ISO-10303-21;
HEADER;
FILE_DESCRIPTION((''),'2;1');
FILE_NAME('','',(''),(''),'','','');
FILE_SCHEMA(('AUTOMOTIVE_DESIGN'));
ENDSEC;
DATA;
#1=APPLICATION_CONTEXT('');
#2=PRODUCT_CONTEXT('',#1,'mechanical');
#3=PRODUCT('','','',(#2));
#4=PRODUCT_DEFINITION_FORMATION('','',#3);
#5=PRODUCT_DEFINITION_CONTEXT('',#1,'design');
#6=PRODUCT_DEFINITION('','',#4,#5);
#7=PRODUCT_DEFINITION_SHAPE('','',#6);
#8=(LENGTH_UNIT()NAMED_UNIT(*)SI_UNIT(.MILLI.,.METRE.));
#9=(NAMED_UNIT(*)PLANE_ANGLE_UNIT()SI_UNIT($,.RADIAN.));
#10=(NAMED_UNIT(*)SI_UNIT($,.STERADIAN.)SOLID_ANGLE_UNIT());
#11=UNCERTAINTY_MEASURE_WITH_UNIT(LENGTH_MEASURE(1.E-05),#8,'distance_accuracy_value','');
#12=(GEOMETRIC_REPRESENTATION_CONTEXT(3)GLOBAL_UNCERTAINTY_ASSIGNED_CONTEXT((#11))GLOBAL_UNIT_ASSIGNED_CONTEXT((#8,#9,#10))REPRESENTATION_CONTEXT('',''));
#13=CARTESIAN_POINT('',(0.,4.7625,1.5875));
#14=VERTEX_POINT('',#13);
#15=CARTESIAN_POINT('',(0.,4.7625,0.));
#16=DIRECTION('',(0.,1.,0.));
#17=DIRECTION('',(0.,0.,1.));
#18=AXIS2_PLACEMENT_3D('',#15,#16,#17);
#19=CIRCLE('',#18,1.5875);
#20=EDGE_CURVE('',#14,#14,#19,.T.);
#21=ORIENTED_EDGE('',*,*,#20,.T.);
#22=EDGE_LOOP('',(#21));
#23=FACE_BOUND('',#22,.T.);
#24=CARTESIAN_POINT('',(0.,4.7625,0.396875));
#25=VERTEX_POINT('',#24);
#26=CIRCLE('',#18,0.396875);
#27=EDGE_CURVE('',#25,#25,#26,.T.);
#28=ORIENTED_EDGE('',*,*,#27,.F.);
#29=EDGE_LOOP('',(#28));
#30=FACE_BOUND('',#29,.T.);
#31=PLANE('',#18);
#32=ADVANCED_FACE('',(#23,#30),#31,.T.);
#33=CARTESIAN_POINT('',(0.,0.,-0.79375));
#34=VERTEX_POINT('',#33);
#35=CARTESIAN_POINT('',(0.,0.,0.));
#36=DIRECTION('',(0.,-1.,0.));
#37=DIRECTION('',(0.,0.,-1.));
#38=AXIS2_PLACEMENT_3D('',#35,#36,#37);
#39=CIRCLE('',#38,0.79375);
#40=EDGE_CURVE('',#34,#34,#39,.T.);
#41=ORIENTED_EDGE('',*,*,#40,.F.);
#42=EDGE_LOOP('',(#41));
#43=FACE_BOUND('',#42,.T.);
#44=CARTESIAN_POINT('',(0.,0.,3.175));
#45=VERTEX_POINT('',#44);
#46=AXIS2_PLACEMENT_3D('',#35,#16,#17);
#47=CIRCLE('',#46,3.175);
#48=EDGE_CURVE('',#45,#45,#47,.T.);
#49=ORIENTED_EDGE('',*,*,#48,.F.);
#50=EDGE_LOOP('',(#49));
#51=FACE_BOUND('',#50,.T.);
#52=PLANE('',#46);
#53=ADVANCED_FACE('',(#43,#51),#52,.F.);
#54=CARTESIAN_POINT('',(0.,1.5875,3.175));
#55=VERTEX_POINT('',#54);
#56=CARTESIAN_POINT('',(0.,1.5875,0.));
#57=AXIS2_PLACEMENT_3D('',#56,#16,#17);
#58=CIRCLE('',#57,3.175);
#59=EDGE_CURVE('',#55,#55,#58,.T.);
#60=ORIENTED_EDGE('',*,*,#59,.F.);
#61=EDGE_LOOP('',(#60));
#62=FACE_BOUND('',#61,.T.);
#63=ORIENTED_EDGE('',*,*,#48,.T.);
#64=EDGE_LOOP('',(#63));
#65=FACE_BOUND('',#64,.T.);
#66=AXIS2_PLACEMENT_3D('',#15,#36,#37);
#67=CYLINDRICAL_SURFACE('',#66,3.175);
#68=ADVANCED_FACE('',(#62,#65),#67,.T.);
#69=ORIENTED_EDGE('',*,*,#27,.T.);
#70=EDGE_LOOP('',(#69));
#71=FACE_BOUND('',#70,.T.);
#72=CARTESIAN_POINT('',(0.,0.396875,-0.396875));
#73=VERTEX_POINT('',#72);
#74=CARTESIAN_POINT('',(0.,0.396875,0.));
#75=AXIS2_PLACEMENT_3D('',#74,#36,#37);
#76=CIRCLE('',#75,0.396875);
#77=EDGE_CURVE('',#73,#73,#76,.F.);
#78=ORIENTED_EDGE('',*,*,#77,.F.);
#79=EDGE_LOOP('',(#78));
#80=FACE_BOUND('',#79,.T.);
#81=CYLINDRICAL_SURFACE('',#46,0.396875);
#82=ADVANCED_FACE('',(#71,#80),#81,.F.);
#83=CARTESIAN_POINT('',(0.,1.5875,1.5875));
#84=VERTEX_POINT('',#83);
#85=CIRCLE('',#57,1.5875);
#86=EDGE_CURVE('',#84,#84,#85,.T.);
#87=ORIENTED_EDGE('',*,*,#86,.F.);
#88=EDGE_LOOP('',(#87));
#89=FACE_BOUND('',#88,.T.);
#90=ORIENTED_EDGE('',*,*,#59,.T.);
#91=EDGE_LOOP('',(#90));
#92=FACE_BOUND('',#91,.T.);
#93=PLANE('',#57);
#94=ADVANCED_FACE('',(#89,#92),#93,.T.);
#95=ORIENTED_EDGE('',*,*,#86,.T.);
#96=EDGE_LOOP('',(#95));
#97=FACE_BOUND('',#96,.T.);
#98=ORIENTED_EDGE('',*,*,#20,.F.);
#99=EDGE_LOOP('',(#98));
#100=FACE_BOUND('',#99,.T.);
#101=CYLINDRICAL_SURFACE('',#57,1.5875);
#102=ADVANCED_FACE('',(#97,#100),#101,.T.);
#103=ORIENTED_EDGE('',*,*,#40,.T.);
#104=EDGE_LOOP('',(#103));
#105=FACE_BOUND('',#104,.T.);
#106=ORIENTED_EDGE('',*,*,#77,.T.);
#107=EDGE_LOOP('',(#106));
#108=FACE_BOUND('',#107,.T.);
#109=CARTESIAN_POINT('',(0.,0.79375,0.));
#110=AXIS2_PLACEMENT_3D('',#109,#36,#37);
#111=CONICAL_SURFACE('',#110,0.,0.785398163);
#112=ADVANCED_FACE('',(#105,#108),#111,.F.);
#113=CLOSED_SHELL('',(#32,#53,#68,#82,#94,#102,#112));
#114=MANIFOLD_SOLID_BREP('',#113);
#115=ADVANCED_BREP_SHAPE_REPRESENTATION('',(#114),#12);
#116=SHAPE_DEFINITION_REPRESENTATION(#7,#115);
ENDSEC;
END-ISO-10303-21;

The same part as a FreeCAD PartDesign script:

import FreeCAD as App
import Part
import Sketcher
Q = App.Units.Quantity


def add_polygon(sketch, points):
    """Adds a closed chain of lines whose ends are joined by coincident constraints."""
    first, n = sketch.GeometryCount, len(points)
    for a, b in zip(points, points[1:] + points[:1]):
        sketch.addGeometry(Part.LineSegment(App.Vector(*a, 0), App.Vector(*b, 0)), False)
    for i in range(n):
        sketch.addConstraint(Sketcher.Constraint("Coincident", first + i, 2, first + (i + 1) % n, 1))

doc = App.newDocument("Part")
body = doc.addObject("PartDesign::Body", "Body")

sketch1 = doc.addObject("Sketcher::SketchObject", "Sketch")
body.addObject(sketch1)
sketch1.AttachmentSupport = (doc.XZ_Plane, [""])
sketch1.MapMode = "FlatFace"
sketch1.addGeometry(Part.Circle(App.Vector(0, 0, 0), App.Vector(0, 0, 1), 3.2), False)
sketch1.addConstraint(Sketcher.Constraint("Coincident", 0, 3, -1, 1))
sketch1.addConstraint(Sketcher.Constraint("Diameter", 0, Q("0.25 in")))
pad1 = doc.addObject("PartDesign::Pad", "Pad")
body.addObject(pad1)
pad1.Profile = sketch1
pad1.Length = Q("0.1875 in")
pad1.Reversed = True

sketch2 = doc.addObject("Sketcher::SketchObject", "Sketch001")
body.addObject(sketch2)
sketch2.AttachmentSupport = (doc.XZ_Plane, [""])
sketch2.MapMode = "FlatFace"
sketch2.AttachmentOffset = App.Placement(App.Vector(0, 0, -0.1875 * 25.4), App.Rotation())
sketch2.addGeometry(Part.Circle(App.Vector(0, 0, 0), App.Vector(0, 0, 1), 3.2), False)
sketch2.addGeometry(Part.Circle(App.Vector(0, 0, 0), App.Vector(0, 0, 1), 1.6), False)
sketch2.addConstraint(Sketcher.Constraint("Coincident", 0, 3, -1, 1))
sketch2.addConstraint(Sketcher.Constraint("Coincident", 1, 3, -1, 1))
sketch2.addConstraint(Sketcher.Constraint("Diameter", 0, Q("0.25 in")))
sketch2.addConstraint(Sketcher.Constraint("Diameter", 1, Q("0.125 in")))
pocket1 = doc.addObject("PartDesign::Pocket", "Pocket")
body.addObject(pocket1)
pocket1.Profile = sketch2
pocket1.Length = Q("0.125 in")
pocket1.Reversed = True

sketch3 = doc.addObject("Sketcher::SketchObject", "Sketch002")
body.addObject(sketch3)
sketch3.AttachmentSupport = (doc.XZ_Plane, [""])
sketch3.MapMode = "FlatFace"
sketch3.AttachmentOffset = App.Placement(App.Vector(0, 0, -0.1875 * 25.4), App.Rotation())
sketch3.addGeometry(Part.Circle(App.Vector(0, 0, 0), App.Vector(0, 0, 1), 0.4), False)
sketch3.addConstraint(Sketcher.Constraint("Coincident", 0, 3, -1, 1))
sketch3.addConstraint(Sketcher.Constraint("Diameter", 0, Q("0.03125 in")))
pocket2 = doc.addObject("PartDesign::Pocket", "Pocket001")
body.addObject(pocket2)
pocket2.Profile = sketch3
pocket2.Type = "ThroughAll"
pocket2.Reversed = True

sketch4 = doc.addObject("Sketcher::SketchObject", "Sketch003")
body.addObject(sketch4)
sketch4.AttachmentSupport = (doc.YZ_Plane, [""])
sketch4.MapMode = "FlatFace"
add_polygon(sketch4, [(0, 0), (0.8, 0), (0, 0.8)])
sketch4.addConstraint(Sketcher.Constraint("Horizontal", 0))
sketch4.addConstraint(Sketcher.Constraint("Vertical", 2))
sketch4.addConstraint(Sketcher.Constraint("Coincident", 2, 2, -1, 1))
sketch4.addConstraint(Sketcher.Constraint("Equal", 0, 2))
sketch4.addConstraint(Sketcher.Constraint("DistanceX", 0, 1, 0, 2, Q("0.03125 in")))
groove = doc.addObject("PartDesign::Groove", "Groove")
body.addObject(groove)
groove.Profile = sketch4
groove.ReferenceAxis = (sketch4, ["H_Axis"])
groove.Angle = 360

doc.recompute()
